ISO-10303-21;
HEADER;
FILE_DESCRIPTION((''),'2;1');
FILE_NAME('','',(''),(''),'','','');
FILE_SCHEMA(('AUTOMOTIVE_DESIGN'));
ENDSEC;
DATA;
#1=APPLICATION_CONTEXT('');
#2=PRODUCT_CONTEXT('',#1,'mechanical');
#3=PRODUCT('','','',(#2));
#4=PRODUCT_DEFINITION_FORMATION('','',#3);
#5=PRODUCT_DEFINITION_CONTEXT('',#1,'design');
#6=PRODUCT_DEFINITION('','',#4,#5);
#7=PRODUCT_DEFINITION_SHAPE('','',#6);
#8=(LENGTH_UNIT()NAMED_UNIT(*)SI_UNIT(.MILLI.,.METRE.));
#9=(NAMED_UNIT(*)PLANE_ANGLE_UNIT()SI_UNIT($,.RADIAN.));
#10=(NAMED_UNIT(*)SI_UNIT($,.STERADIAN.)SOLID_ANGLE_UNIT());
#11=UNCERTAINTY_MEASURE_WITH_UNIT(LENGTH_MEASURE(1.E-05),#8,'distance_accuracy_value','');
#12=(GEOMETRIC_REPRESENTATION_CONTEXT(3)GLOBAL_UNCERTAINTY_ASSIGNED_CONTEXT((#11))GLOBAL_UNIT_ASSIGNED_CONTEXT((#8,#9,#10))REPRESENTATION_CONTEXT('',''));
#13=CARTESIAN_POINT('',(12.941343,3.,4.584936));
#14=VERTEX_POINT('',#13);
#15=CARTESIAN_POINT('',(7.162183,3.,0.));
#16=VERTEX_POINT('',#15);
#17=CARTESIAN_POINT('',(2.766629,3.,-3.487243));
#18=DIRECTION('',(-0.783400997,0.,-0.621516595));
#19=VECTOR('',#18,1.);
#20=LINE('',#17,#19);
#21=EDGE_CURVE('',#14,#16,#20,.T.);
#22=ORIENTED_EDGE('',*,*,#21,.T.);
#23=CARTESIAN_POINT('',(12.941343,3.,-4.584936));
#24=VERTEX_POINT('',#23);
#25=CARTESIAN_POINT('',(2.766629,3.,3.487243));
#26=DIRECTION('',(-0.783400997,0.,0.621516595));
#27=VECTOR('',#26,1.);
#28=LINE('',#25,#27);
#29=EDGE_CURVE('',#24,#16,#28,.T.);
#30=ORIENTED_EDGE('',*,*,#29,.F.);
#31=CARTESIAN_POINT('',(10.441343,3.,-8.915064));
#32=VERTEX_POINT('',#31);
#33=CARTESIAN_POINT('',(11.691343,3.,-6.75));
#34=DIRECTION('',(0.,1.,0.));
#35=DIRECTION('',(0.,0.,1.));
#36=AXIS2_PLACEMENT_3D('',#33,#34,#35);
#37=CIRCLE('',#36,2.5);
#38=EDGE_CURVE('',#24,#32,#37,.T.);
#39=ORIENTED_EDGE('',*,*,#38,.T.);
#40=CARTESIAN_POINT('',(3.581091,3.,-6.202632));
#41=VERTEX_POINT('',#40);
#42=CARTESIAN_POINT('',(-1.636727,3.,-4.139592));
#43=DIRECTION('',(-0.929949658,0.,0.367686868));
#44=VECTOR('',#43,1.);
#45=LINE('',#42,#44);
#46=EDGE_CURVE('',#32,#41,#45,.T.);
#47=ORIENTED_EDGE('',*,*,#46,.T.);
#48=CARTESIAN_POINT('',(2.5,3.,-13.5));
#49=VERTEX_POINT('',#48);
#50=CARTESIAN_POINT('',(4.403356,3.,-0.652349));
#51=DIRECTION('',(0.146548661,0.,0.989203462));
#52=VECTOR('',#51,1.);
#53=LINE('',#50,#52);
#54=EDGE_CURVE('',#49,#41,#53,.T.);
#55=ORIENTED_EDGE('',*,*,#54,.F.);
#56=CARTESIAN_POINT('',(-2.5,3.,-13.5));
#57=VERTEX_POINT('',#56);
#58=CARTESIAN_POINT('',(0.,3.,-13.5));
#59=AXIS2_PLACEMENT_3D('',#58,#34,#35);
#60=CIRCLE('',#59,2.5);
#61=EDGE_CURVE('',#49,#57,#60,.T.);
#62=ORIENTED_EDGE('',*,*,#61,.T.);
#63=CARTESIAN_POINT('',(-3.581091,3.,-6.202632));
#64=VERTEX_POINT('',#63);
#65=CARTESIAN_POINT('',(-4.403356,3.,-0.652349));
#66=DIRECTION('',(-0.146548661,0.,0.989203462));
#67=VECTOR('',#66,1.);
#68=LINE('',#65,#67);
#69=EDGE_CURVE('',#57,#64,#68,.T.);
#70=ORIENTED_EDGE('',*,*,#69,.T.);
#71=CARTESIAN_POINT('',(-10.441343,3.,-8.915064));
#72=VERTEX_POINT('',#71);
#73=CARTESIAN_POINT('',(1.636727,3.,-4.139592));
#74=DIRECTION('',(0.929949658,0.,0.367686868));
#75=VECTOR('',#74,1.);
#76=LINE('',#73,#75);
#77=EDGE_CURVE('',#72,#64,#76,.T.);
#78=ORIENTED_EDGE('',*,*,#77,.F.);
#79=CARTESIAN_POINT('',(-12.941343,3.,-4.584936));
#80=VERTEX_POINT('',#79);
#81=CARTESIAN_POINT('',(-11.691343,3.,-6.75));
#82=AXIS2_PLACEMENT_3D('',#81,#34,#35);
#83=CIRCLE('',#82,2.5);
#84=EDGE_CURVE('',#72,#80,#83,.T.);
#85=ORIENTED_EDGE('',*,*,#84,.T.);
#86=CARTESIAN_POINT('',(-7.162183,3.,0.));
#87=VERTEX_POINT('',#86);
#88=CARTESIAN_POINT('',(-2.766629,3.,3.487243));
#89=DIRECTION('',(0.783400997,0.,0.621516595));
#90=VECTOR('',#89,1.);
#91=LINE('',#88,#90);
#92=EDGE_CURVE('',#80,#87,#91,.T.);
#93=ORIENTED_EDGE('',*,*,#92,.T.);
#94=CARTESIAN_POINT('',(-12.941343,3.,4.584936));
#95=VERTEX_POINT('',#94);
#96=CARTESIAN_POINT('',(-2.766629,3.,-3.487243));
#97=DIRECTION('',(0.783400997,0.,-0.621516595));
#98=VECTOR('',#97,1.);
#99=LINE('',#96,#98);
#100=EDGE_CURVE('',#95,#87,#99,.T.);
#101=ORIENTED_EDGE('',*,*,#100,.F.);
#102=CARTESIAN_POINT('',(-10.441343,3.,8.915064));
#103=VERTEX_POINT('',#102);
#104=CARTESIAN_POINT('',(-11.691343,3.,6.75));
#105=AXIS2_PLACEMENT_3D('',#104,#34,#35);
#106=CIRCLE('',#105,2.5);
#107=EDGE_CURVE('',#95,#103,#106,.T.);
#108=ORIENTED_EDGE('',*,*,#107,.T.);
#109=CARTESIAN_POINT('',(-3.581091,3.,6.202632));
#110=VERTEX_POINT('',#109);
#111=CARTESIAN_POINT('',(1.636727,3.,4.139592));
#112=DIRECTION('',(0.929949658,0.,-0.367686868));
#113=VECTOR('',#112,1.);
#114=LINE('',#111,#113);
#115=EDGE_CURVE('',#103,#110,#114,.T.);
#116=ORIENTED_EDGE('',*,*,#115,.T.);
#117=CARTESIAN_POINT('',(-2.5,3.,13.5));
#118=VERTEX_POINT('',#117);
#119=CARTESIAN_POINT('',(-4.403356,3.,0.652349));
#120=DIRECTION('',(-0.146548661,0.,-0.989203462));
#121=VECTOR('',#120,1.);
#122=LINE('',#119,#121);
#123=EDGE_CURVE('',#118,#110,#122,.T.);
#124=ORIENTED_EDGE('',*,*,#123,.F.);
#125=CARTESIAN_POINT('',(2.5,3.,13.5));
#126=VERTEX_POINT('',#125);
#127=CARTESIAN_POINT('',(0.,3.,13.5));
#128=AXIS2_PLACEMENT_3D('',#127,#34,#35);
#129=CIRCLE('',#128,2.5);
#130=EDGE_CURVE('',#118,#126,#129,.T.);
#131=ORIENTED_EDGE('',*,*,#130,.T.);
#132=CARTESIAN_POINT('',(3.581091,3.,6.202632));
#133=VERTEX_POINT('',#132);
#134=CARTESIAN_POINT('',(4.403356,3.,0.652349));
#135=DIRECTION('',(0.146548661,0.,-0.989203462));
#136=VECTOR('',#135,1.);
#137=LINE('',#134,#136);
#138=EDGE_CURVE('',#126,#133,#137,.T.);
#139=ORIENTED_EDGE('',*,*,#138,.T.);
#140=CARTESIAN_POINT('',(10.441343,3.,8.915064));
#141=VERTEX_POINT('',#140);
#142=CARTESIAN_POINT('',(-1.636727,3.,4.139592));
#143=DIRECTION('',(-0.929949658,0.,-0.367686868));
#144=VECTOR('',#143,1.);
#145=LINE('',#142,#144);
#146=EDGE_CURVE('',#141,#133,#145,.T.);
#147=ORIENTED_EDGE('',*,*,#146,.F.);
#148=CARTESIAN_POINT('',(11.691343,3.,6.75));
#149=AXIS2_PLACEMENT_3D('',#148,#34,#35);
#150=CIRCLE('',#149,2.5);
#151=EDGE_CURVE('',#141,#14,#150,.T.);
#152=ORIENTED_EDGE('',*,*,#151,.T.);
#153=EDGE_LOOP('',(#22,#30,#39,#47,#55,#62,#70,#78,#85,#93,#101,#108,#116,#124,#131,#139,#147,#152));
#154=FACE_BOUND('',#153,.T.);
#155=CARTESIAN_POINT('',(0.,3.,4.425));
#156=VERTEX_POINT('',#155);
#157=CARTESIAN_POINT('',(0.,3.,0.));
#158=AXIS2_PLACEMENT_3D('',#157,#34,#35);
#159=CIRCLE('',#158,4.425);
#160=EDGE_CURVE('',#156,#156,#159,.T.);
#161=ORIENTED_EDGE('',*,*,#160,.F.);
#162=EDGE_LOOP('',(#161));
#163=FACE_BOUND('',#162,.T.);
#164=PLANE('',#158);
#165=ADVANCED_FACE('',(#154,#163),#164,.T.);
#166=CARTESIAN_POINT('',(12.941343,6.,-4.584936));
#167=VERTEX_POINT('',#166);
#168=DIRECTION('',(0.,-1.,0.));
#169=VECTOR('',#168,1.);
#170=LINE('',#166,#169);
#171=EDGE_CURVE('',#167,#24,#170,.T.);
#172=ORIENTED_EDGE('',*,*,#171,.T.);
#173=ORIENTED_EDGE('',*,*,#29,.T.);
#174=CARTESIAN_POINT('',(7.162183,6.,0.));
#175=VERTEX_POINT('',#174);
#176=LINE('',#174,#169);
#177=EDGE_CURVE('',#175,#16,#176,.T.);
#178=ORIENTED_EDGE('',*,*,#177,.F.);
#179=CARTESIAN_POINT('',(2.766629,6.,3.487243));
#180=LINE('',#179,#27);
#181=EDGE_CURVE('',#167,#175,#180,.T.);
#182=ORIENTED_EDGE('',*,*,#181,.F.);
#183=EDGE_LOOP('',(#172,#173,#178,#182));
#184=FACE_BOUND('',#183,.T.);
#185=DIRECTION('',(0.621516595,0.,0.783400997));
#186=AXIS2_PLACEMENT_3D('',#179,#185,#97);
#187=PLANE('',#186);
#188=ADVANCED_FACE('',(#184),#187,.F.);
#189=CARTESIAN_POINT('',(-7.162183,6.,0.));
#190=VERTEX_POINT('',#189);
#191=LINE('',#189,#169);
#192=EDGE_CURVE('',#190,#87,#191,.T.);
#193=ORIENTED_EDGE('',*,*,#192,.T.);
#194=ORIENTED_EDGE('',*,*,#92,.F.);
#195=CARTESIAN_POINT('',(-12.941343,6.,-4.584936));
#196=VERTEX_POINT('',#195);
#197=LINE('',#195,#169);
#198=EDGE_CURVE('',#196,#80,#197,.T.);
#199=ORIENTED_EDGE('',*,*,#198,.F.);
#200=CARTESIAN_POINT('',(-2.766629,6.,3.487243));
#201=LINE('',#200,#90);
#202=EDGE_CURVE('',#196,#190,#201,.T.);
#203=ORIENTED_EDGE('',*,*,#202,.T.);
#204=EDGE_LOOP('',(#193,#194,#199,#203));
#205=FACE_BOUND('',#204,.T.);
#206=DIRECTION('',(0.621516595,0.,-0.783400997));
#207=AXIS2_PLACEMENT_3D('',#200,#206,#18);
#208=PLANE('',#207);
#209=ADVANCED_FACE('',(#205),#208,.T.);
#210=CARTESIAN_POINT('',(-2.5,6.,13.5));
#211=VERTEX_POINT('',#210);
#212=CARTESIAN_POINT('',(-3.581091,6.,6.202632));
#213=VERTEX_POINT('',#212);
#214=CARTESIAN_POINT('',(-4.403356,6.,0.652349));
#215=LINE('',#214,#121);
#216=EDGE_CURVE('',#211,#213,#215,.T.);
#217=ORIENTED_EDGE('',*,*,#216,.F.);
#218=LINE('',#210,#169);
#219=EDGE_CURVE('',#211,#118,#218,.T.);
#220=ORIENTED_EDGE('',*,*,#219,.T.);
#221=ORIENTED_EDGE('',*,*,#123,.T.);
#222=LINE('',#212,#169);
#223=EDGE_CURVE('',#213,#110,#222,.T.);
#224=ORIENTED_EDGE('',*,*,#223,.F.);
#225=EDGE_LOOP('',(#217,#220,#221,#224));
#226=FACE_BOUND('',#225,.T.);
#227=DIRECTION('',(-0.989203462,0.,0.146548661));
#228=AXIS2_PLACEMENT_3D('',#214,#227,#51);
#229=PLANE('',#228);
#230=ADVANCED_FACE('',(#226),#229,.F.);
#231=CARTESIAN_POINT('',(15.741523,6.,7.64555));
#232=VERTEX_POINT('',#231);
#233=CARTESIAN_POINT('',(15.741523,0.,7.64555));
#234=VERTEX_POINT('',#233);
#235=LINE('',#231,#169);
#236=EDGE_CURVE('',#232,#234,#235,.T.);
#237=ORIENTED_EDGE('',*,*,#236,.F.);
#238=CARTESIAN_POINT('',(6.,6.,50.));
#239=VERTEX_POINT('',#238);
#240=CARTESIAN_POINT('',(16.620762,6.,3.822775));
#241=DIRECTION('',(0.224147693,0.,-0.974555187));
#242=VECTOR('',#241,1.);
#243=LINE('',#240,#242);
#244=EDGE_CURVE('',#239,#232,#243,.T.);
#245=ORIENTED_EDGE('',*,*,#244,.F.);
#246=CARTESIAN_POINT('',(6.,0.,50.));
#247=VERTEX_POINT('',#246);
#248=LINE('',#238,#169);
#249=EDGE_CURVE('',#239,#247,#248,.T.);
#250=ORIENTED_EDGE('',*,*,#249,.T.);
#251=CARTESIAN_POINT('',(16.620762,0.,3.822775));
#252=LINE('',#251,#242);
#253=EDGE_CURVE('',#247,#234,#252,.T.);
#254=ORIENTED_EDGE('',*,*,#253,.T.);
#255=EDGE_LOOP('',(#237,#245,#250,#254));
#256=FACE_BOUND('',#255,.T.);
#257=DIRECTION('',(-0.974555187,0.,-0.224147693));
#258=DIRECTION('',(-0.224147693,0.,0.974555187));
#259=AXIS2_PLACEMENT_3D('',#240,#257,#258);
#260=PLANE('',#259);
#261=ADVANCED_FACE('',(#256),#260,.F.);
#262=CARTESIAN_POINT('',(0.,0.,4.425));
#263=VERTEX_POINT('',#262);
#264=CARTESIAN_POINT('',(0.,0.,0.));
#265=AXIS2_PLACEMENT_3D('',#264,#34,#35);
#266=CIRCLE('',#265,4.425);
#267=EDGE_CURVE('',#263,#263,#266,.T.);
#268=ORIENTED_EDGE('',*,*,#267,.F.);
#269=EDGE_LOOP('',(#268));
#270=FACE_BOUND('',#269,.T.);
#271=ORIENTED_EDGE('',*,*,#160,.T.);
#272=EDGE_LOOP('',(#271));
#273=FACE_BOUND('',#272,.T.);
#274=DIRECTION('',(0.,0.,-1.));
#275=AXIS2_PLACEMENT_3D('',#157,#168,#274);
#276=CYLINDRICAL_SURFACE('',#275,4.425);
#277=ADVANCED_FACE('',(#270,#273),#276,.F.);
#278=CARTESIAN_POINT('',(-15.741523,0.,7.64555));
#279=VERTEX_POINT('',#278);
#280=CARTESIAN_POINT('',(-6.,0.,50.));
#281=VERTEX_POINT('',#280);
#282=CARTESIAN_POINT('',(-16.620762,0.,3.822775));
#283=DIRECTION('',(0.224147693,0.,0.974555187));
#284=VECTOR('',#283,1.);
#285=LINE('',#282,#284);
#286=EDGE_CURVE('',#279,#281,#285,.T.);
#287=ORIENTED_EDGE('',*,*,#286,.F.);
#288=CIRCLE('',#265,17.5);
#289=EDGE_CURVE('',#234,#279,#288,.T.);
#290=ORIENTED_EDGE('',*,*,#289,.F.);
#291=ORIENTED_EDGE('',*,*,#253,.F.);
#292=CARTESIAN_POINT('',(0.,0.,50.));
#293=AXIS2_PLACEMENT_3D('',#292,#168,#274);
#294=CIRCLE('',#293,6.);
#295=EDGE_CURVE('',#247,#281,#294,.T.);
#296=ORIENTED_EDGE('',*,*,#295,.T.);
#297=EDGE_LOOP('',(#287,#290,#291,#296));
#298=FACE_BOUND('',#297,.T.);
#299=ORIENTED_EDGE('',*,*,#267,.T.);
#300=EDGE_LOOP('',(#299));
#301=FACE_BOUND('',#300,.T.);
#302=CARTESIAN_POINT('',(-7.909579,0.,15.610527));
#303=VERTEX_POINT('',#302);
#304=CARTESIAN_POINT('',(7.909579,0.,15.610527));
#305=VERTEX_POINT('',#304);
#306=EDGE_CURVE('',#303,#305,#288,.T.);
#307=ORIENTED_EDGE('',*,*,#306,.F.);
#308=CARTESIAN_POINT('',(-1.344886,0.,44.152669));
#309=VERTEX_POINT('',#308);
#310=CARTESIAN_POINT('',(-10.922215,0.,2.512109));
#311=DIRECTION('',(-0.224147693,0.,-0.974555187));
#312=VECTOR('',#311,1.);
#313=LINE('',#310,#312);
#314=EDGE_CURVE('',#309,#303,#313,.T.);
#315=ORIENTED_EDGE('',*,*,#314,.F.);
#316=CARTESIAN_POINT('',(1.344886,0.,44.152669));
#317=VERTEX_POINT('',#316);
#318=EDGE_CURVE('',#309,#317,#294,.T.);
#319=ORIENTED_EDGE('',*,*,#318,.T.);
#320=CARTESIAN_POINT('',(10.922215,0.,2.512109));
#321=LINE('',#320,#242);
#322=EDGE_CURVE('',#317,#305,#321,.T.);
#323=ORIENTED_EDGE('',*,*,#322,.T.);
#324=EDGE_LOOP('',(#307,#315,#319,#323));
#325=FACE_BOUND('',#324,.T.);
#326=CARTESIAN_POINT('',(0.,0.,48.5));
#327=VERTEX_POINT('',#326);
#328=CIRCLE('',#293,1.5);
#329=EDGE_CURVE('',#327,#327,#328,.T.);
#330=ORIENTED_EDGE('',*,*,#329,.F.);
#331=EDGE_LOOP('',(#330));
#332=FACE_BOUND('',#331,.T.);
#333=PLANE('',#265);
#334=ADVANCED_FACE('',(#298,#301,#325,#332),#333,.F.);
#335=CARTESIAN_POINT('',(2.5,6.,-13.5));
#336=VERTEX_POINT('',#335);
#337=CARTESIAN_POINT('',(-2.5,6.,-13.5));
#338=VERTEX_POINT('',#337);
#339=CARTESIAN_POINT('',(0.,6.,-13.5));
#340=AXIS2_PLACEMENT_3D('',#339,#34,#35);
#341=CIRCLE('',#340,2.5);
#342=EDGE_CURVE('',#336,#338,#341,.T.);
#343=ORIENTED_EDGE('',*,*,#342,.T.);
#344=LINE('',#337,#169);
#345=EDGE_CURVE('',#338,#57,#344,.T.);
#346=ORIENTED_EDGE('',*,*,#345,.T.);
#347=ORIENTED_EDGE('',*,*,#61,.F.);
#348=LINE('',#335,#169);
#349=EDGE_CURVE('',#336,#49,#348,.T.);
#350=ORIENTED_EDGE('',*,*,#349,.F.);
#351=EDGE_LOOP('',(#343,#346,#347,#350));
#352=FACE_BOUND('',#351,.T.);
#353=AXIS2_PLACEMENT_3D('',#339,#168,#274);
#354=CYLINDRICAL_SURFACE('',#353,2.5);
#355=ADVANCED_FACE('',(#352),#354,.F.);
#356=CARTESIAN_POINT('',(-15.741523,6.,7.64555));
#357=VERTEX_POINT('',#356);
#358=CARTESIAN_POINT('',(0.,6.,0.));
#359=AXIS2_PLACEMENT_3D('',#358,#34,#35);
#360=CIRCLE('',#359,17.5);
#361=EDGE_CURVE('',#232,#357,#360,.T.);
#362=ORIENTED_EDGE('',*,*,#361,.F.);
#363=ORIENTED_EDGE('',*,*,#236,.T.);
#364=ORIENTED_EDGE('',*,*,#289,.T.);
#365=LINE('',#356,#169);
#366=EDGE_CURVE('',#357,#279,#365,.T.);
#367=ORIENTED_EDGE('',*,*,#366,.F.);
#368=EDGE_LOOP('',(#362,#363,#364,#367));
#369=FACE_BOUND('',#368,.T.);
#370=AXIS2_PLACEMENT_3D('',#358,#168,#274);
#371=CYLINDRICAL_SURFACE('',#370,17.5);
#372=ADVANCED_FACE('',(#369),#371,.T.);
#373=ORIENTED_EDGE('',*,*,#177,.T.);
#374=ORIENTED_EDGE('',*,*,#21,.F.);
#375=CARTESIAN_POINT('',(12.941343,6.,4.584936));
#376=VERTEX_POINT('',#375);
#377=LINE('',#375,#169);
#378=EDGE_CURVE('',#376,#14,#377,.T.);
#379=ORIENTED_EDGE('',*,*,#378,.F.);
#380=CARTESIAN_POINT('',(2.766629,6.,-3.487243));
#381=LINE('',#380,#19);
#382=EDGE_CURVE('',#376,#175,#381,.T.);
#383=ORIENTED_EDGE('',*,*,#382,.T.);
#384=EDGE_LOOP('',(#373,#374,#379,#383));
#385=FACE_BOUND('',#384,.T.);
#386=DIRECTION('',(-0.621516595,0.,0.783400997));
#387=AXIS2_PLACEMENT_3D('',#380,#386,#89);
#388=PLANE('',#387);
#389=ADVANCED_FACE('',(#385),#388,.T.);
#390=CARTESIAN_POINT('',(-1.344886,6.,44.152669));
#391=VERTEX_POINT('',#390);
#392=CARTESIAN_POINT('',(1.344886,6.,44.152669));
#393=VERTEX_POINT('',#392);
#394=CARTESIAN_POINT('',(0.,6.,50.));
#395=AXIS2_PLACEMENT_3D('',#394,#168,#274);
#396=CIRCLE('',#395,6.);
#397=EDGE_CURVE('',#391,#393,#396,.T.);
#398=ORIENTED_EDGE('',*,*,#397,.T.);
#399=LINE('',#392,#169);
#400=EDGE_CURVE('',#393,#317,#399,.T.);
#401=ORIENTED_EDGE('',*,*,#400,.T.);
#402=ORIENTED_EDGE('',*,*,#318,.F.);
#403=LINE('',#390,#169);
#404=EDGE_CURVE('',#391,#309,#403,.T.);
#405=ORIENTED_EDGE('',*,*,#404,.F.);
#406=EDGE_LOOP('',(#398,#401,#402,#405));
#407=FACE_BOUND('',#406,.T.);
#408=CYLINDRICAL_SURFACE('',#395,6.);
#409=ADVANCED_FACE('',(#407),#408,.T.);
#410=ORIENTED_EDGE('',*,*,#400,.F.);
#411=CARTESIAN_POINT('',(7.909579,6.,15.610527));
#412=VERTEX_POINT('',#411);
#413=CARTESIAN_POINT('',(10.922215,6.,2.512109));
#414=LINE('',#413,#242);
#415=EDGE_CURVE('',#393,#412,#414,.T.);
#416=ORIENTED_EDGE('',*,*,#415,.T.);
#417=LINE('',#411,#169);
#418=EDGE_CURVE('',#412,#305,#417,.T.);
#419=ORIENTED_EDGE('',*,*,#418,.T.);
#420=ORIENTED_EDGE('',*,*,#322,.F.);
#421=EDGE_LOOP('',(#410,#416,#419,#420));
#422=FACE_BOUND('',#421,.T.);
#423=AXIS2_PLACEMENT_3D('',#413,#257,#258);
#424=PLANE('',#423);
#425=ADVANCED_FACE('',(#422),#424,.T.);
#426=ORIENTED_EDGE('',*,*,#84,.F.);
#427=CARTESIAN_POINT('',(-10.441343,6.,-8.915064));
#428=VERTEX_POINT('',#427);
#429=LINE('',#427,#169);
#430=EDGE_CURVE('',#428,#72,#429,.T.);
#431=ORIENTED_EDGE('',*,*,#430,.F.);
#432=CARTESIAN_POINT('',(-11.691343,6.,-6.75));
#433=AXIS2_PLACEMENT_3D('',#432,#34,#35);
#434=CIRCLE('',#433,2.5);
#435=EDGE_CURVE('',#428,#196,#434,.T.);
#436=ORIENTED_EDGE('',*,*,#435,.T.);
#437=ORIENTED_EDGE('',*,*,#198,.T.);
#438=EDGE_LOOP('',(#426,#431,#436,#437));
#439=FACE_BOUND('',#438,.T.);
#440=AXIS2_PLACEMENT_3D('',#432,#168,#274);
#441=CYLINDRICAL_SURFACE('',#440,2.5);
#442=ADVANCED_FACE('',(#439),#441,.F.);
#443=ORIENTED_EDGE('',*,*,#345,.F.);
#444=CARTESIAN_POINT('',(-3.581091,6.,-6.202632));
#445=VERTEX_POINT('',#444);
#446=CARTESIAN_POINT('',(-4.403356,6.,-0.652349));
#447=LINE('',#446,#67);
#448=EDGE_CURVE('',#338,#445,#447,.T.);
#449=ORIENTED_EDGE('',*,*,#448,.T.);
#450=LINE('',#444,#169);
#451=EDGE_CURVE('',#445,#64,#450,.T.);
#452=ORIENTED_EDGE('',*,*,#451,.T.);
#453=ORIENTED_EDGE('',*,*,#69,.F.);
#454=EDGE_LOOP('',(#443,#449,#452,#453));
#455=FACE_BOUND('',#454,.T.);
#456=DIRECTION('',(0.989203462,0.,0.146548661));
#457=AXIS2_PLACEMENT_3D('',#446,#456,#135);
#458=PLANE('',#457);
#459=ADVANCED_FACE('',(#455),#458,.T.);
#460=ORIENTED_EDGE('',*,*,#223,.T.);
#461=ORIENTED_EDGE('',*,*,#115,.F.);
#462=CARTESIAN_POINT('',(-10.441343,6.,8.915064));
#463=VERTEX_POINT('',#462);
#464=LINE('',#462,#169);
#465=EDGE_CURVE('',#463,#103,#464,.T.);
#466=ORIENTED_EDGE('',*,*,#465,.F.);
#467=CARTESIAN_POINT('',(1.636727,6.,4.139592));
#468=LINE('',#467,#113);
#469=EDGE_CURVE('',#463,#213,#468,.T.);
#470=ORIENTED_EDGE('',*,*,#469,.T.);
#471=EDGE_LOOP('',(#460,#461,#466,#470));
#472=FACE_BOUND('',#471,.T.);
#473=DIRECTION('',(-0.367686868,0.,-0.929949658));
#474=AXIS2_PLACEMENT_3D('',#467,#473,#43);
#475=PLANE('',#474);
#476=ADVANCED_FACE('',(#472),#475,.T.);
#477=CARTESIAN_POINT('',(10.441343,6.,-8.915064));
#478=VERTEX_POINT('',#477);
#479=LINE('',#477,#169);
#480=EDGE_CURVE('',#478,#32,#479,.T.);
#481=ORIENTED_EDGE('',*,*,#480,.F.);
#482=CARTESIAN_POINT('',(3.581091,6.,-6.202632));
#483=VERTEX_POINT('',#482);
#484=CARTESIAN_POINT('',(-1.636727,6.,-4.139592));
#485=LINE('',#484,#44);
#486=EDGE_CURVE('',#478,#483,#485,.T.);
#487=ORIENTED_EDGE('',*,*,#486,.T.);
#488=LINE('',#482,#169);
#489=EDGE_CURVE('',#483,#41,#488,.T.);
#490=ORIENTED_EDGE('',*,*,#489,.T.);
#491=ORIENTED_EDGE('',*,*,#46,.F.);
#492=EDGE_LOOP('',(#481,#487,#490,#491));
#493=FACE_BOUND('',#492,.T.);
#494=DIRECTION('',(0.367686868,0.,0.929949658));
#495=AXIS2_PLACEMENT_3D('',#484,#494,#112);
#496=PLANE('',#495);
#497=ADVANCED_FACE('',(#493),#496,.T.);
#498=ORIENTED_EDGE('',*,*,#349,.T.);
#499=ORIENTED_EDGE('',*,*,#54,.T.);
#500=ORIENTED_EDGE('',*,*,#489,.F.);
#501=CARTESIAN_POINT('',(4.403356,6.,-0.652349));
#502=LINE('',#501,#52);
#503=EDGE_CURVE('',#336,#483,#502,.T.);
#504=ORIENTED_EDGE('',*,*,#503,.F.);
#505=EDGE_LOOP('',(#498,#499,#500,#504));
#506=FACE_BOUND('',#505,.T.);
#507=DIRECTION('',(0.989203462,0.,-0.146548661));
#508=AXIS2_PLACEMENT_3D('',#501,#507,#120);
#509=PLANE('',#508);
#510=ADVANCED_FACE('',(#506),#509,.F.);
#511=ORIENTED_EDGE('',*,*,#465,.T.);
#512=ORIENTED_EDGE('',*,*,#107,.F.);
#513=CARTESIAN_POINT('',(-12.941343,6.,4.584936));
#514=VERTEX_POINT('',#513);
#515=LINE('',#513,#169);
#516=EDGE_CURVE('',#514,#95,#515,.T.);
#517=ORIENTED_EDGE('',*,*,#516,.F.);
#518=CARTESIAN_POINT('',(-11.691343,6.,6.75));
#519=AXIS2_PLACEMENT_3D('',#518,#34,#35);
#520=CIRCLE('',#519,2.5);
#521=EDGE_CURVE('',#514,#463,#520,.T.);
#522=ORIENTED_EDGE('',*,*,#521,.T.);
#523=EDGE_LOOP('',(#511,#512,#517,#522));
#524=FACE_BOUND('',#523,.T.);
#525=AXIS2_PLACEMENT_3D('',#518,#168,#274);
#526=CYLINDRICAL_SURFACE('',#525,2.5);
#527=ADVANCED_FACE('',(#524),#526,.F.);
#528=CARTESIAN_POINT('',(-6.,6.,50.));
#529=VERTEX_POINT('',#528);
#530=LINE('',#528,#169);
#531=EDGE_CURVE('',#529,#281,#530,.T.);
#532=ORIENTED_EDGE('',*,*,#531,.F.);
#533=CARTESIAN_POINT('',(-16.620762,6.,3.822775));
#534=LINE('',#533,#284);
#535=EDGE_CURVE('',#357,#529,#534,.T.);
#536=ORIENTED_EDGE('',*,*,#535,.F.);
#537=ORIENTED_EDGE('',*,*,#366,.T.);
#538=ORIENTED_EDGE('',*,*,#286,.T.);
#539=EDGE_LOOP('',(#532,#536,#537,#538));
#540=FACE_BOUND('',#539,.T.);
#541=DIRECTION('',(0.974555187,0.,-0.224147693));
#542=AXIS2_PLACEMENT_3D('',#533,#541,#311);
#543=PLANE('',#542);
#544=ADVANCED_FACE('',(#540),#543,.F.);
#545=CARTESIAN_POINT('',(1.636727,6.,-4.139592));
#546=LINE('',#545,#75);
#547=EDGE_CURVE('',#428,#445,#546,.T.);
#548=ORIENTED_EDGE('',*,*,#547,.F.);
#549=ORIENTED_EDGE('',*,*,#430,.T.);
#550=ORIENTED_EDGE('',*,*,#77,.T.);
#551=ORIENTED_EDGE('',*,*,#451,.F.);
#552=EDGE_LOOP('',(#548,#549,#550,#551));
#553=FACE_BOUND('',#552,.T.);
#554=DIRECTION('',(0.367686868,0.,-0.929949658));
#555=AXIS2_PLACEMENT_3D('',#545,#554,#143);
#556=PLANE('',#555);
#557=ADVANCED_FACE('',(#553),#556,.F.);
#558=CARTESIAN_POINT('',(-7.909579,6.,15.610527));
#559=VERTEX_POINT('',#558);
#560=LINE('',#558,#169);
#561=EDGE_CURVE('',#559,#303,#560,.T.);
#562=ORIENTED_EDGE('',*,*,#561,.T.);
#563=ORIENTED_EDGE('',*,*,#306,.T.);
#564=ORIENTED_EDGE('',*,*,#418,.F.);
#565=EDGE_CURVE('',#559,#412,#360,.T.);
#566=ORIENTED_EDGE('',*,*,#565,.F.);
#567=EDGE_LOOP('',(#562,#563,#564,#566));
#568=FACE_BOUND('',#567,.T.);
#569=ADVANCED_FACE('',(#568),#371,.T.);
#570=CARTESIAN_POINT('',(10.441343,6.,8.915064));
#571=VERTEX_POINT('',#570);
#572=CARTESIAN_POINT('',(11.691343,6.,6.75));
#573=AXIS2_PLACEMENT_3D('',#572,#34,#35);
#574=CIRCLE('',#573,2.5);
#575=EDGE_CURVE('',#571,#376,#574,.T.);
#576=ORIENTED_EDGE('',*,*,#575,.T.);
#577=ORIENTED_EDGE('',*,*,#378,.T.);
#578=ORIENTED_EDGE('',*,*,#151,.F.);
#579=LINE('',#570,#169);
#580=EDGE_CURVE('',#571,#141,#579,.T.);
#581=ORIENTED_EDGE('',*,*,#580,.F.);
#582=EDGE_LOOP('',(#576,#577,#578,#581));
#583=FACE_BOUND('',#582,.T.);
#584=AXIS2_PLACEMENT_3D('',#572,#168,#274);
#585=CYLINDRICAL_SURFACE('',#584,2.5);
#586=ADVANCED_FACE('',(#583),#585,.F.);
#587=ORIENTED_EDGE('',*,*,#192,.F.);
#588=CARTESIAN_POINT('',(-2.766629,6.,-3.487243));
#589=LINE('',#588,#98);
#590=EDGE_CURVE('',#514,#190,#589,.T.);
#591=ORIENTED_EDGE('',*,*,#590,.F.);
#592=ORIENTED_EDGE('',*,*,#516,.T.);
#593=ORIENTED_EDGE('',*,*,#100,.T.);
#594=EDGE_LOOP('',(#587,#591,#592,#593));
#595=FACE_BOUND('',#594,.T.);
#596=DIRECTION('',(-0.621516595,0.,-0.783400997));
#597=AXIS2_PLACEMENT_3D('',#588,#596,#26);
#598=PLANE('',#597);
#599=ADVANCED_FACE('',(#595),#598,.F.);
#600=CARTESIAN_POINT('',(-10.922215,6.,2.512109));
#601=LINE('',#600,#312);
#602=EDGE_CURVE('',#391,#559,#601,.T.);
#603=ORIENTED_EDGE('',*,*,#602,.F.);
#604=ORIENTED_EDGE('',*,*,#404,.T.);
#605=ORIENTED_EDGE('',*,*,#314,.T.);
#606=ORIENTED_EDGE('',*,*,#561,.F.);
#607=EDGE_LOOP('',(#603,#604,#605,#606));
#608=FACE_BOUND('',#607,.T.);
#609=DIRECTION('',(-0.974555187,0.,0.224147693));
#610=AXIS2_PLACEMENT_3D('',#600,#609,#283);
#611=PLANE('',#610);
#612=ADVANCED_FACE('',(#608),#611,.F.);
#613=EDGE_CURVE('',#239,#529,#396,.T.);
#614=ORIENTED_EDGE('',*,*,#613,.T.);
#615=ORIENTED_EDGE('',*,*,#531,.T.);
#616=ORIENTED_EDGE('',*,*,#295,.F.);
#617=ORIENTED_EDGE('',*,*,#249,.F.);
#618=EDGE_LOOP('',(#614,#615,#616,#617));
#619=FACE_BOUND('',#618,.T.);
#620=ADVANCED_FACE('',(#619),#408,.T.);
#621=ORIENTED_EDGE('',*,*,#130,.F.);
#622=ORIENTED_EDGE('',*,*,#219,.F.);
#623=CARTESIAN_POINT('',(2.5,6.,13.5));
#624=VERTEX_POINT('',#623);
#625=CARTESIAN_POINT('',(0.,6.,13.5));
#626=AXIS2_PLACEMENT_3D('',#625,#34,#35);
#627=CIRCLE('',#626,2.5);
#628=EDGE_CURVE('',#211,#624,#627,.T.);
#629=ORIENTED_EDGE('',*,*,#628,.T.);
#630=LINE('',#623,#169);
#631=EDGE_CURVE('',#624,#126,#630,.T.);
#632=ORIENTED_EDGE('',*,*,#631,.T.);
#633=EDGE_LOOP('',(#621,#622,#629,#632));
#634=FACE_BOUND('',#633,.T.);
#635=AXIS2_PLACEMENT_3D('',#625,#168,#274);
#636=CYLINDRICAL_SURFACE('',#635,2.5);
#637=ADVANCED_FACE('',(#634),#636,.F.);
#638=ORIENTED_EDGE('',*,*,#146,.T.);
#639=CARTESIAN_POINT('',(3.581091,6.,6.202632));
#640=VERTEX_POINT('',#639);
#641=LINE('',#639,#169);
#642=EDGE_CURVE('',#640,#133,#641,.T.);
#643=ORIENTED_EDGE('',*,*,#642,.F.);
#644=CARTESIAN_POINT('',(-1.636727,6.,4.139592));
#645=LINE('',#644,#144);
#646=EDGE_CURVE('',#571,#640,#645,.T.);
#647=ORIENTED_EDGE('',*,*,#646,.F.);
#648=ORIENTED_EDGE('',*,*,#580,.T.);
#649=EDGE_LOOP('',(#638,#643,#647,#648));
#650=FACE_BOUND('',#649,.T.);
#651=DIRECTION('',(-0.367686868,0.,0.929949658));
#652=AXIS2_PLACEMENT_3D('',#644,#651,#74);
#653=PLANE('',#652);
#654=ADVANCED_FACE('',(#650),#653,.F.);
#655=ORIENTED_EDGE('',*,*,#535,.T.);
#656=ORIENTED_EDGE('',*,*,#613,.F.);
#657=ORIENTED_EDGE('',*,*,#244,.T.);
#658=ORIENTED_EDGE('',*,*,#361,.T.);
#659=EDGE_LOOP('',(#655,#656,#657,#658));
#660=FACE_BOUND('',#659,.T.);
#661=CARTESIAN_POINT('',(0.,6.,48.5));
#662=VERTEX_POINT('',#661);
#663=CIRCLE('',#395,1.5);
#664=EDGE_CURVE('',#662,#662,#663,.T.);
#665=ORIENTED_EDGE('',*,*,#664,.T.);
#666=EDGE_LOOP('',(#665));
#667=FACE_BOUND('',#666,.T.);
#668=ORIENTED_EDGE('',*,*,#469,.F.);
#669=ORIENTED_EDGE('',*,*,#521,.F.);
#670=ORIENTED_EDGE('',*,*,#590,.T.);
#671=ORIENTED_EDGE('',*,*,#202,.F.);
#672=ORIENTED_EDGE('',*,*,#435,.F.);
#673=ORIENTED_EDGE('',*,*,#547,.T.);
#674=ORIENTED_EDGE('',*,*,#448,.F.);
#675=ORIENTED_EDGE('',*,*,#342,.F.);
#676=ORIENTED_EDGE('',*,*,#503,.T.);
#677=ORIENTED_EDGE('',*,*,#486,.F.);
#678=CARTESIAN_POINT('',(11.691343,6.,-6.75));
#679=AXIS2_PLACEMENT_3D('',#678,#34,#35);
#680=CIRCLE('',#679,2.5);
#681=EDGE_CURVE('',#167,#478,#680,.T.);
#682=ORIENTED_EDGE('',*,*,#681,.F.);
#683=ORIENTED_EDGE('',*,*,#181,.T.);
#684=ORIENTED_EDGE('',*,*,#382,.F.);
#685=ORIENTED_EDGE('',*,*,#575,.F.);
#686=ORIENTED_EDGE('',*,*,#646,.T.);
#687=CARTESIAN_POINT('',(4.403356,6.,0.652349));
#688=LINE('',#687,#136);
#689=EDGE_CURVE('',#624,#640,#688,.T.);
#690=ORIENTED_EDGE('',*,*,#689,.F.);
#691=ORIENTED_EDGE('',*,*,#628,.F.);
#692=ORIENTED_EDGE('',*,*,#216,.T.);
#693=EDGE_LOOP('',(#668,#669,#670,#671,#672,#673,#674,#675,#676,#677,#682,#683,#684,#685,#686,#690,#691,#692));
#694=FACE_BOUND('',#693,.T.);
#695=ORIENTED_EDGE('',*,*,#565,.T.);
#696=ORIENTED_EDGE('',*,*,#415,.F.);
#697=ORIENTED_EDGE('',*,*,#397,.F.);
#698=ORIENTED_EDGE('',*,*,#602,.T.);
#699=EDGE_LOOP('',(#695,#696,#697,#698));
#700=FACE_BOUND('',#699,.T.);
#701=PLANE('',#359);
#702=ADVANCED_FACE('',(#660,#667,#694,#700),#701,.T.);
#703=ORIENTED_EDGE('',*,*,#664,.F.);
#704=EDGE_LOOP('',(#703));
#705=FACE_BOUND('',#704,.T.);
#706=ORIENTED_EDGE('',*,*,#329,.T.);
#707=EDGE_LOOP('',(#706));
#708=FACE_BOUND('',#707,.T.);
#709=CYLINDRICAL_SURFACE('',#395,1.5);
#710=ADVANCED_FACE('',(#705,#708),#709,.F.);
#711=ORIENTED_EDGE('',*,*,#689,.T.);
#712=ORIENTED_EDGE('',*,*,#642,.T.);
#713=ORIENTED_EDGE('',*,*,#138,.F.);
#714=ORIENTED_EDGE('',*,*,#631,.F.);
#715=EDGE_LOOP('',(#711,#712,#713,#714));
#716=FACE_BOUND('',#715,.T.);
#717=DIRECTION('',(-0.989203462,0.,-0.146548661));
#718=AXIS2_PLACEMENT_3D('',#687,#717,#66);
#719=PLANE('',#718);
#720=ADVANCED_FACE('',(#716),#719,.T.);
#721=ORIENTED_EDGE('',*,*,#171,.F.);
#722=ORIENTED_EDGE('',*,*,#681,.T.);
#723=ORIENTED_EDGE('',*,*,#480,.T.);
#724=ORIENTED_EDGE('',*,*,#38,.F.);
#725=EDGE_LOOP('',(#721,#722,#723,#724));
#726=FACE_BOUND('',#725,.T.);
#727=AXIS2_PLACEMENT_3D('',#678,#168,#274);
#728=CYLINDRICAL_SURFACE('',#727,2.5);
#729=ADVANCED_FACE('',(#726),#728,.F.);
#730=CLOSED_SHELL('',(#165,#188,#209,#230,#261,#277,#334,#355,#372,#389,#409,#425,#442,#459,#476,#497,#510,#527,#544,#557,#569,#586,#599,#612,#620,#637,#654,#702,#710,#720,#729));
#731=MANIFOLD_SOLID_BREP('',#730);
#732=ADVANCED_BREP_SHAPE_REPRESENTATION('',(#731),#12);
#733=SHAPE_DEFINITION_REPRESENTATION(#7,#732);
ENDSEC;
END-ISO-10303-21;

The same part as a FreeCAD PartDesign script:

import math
import FreeCAD as App
import Part
import Sketcher

V = App.Vector

doc = App.newDocument("Part")
body = doc.addObject("PartDesign::Body", "Body")

# Sketch on XZ plane
sketch1 = body.newObject("Sketcher::SketchObject", "Sketch")
sketch1.AttachmentSupport = (doc.getObject("XZ_Plane"), [""])
sketch1.MapMode = "FlatFace"
sketch1.addGeometry([
    Part.Circle(V(0, 0, 0), V(0, 0, 1), 17.5),  # 0
    Part.LineSegment(V(-3.6, -6.2, 0), V(-2.5, -13.5, 0)),  # 1
    Part.ArcOfCircle(Part.Circle(V(0, -13.5, 0), V(0, 0, 1), 2.5), math.radians(180), math.radians(270)),  # 2
    Part.ArcOfCircle(Part.Circle(V(0, -13.5, 0), V(0, 0, 1), 2.5), math.radians(-90), math.radians(0)),  # 3
    Part.LineSegment(V(2.5, -13.5, 0), V(3.6, -6.2, 0)),  # 4
    Part.LineSegment(V(3.6, -6.2, 0), V(10.4, -8.9, 0)),  # 5
    Part.ArcOfCircle(Part.Circle(V(11.7, -6.8, 0), V(0, 0, 1), 2.5), math.radians(-120), math.radians(-30)),  # 6
    Part.ArcOfCircle(Part.Circle(V(11.7, -6.8, 0), V(0, 0, 1), 2.5), math.radians(-30), math.radians(0)),  # 7
    Part.ArcOfCircle(Part.Circle(V(11.7, -6.7, 0), V(0, 0, 1), 2.5), math.radians(0), math.radians(60)),  # 8
    Part.LineSegment(V(12.9, -4.6, 0), V(7.2, 0, 0)),  # 9
    Part.LineSegment(V(7.2, 0, 0), V(12.9, 4.6, 0)),  # 10
    Part.ArcOfCircle(Part.Circle(V(11.7, 6.7, 0), V(0, 0, 1), 2.5), math.radians(-60), math.radians(0)),  # 11
    Part.ArcOfCircle(Part.Circle(V(11.7, 6.8, 0), V(0, 0, 1), 2.5), math.radians(0), math.radians(30)),  # 12
    Part.ArcOfCircle(Part.Circle(V(11.7, 6.8, 0), V(0, 0, 1), 2.5), math.radians(30), math.radians(120)),  # 13
    Part.LineSegment(V(10.4, 8.9, 0), V(3.6, 6.2, 0)),  # 14
    Part.LineSegment(V(3.6, 6.2, 0), V(2.5, 13.5, 0)),  # 15
    Part.ArcOfCircle(Part.Circle(V(0, 13.5, 0), V(0, 0, 1), 2.5), math.radians(0), math.radians(90)),  # 16
    Part.ArcOfCircle(Part.Circle(V(0, 13.5, 0), V(0, 0, 1), 2.5), math.radians(90), math.radians(180)),  # 17
    Part.LineSegment(V(-2.5, 13.5, 0), V(-3.6, 6.2, 0)),  # 18
    Part.LineSegment(V(-3.6, 6.2, 0), V(-10.4, 8.9, 0)),  # 19
    Part.ArcOfCircle(Part.Circle(V(-11.7, 6.8, 0), V(0, 0, 1), 2.5), math.radians(60), math.radians(150)),  # 20
    Part.ArcOfCircle(Part.Circle(V(-11.7, 6.8, 0), V(0, 0, 1), 2.5), math.radians(150), math.radians(240)),  # 21
    Part.LineSegment(V(-12.9, 4.6, 0), V(-7.2, 0, 0)),  # 22
    Part.LineSegment(V(-7.2, 0, 0), V(-12.9, -4.6, 0)),  # 23
    Part.ArcOfCircle(Part.Circle(V(-11.7, -6.8, 0), V(0, 0, 1), 2.5), math.radians(120), math.radians(210)),  # 24
    Part.ArcOfCircle(Part.Circle(V(-11.7, -6.8, 0), V(0, 0, 1), 2.5), math.radians(-150), math.radians(-60)),  # 25
    Part.LineSegment(V(-10.4, -8.9, 0), V(-3.6, -6.2, 0)),  # 26
], False)
sketch1.addConstraint([
    Sketcher.Constraint("Coincident", 1, 2, 2, 1),
    Sketcher.Constraint("Tangent", 2, 2, 3, 1),
    Sketcher.Constraint("Coincident", 3, 2, 4, 1),
    Sketcher.Constraint("Coincident", 4, 2, 5, 1),
    Sketcher.Constraint("Coincident", 5, 2, 6, 1),
    Sketcher.Constraint("Tangent", 6, 2, 7, 1),
    Sketcher.Constraint("Tangent", 7, 2, 8, 1),
    Sketcher.Constraint("Coincident", 8, 2, 9, 1),
    Sketcher.Constraint("Coincident", 9, 2, 10, 1),
    Sketcher.Constraint("Coincident", 10, 2, 11, 1),
    Sketcher.Constraint("Tangent", 11, 2, 12, 1),
    Sketcher.Constraint("Tangent", 12, 2, 13, 1),
    Sketcher.Constraint("Coincident", 13, 2, 14, 1),
    Sketcher.Constraint("Coincident", 14, 2, 15, 1),
    Sketcher.Constraint("Coincident", 15, 2, 16, 1),
    Sketcher.Constraint("Tangent", 16, 2, 17, 1),
    Sketcher.Constraint("Coincident", 17, 2, 18, 1),
    Sketcher.Constraint("Coincident", 18, 2, 19, 1),
    Sketcher.Constraint("Coincident", 19, 2, 20, 1),
    Sketcher.Constraint("Tangent", 20, 2, 21, 1),
    Sketcher.Constraint("Coincident", 21, 2, 22, 1),
    Sketcher.Constraint("Coincident", 22, 2, 23, 1),
    Sketcher.Constraint("Coincident", 23, 2, 24, 1),
    Sketcher.Constraint("Tangent", 24, 2, 25, 1),
    Sketcher.Constraint("Coincident", 25, 2, 26, 1),
    Sketcher.Constraint("Coincident", 26, 2, 1, 1),
    Sketcher.Constraint("Coincident", 0, 3, -1, 1),
    Sketcher.Constraint("Coincident", 8, 3, 6, 3),
    Sketcher.Constraint("Coincident", 13, 3, 11, 3),
    Sketcher.Constraint("Equal", 2, 3),
    Sketcher.Constraint("Equal", 3, 6),
    Sketcher.Constraint("Equal", 8, 11),
    Sketcher.Constraint("Equal", 13, 16),
    Sketcher.Constraint("Equal", 16, 17),
    Sketcher.Constraint("Equal", 17, 20),
    Sketcher.Constraint("Equal", 20, 21),
    Sketcher.Constraint("Equal", 21, 24),
    Sketcher.Constraint("Equal", 24, 25),
    Sketcher.Constraint("Symmetric", 2, 3, 16, 3, -1, 1),
    Sketcher.Constraint("Symmetric", 6, 3, 20, 3, -1, 1),
    Sketcher.Constraint("Symmetric", 11, 3, 24, 3, -1, 1),
    Sketcher.Constraint("Symmetric", 4, 2, 18, 2, -1, 1),
    Sketcher.Constraint("Symmetric", 9, 2, 22, 2, -1, 1),
    Sketcher.Constraint("Symmetric", 14, 2, 26, 2, -1, 1),
    Sketcher.Constraint("Symmetric", 11, 3, 20, 3, -2),
    Sketcher.Constraint("Symmetric", 1, 2, 3, 2, -2),
    Sketcher.Constraint("Symmetric", 14, 2, 18, 2, -2),
    Sketcher.Constraint("PointOnObject", 2, 2, -2),
    Sketcher.Constraint("PointOnObject", 9, 2, -1),
    Sketcher.Constraint("PointOnObject", 16, 2, -2),
    Sketcher.Constraint("Parallel", 1, 15),
    Sketcher.Constraint("Parallel", 4, 18),
    Sketcher.Constraint("Parallel", 5, 19),
    Sketcher.Constraint("Parallel", 9, 22),
    Sketcher.Constraint("Parallel", 10, 23),
    Sketcher.Constraint("Parallel", 14, 26),
    Sketcher.Constraint("Horizontal", 3, 3, 1, 2),
    Sketcher.Constraint("Horizontal", 25, 3, 7, 2),
    Sketcher.Constraint("Horizontal", 21, 3, 11, 2),
    Sketcher.Constraint("Horizontal", 13, 2, 19, 2),
    Sketcher.Constraint("Horizontal", 12, 2, 20, 2),
    Sketcher.Constraint("Horizontal", 10, 2, 21, 2),
    Sketcher.Constraint("Horizontal", 6, 2, 24, 2),
    Sketcher.Constraint("Vertical", 6, 2, 12, 2),
    Sketcher.Constraint("Equal", 4, 5),
    Sketcher.Constraint("Equal", 5, 9),
    Sketcher.Constraint("Diameter", 0, 35.0),
    Sketcher.Constraint("Radius", 2, 2.5),
    Sketcher.Constraint("DistanceY", 2, 2, -1, 1, 16.0),
    Sketcher.Constraint("DistanceY", 6, 2, -1, 1, 8.0),
    Sketcher.Constraint("DistanceY", 8, 3, 11, 3, 13.5),
    Sketcher.Constraint("DistanceX", 21, 2, 19, 2, 2.5),
    Sketcher.Constraint("DistanceX", 5, 2, 6, 3, 1.25),
    Sketcher.Constraint("DistanceX", -1, 1, 4, 2, 3.581091),
    Sketcher.Constraint("DistanceX", 4, 2, 6, 3, 8.110251),
])
pad1 = body.newObject("PartDesign::Pad", "Pad")
pad1.Profile = sketch1
pad1.Length = 6
pad1.Reversed = True

# Sketch on XZ plane
sketch2 = body.newObject("Sketcher::SketchObject", "Sketch001")
sketch2.AttachmentSupport = (doc.getObject("XZ_Plane"), [""])
sketch2.MapMode = "FlatFace"
sketch2.addGeometry([
    Part.LineSegment(V(-7.2, 0, 0), V(-12.9, 4.6, 0)),  # 0
    Part.ArcOfCircle(Part.Circle(V(-11.7, 6.8, 0), V(0, 0, 1), 2.5), math.radians(150), math.radians(240)),  # 1
    Part.ArcOfCircle(Part.Circle(V(-11.7, 6.8, 0), V(0, 0, 1), 2.5), math.radians(60), math.radians(150)),  # 2
    Part.LineSegment(V(-10.4, 8.9, 0), V(-3.6, 6.2, 0)),  # 3
    Part.LineSegment(V(-3.6, 6.2, 0), V(-2.5, 13.5, 0)),  # 4
    Part.ArcOfCircle(Part.Circle(V(0, 13.5, 0), V(0, 0, 1), 2.5), math.radians(90), math.radians(180)),  # 5
    Part.ArcOfCircle(Part.Circle(V(0, 13.5, 0), V(0, 0, 1), 2.5), math.radians(0), math.radians(90)),  # 6
    Part.LineSegment(V(2.5, 13.5, 0), V(3.6, 6.2, 0)),  # 7
    Part.LineSegment(V(3.6, 6.2, 0), V(10.4, 8.9, 0)),  # 8
    Part.ArcOfCircle(Part.Circle(V(11.7, 6.8, 0), V(0, 0, 1), 2.5), math.radians(30), math.radians(120)),  # 9
    Part.ArcOfCircle(Part.Circle(V(11.7, 6.8, 0), V(0, 0, 1), 2.5), math.radians(0), math.radians(30)),  # 10
    Part.ArcOfCircle(Part.Circle(V(11.7, 6.7, 0), V(0, 0, 1), 2.5), math.radians(-60), math.radians(0)),  # 11
    Part.LineSegment(V(12.9, 4.6, 0), V(7.2, 0, 0)),  # 12
    Part.LineSegment(V(7.2, 0, 0), V(12.9, -4.6, 0)),  # 13
    Part.ArcOfCircle(Part.Circle(V(11.7, -6.7, 0), V(0, 0, 1), 2.5), math.radians(0), math.radians(60)),  # 14
    Part.ArcOfCircle(Part.Circle(V(11.7, -6.8, 0), V(0, 0, 1), 2.5), math.radians(-30), math.radians(0)),  # 15
    Part.ArcOfCircle(Part.Circle(V(11.7, -6.8, 0), V(0, 0, 1), 2.5), math.radians(-120), math.radians(-30)),  # 16
    Part.LineSegment(V(10.4, -8.9, 0), V(3.6, -6.2, 0)),  # 17
    Part.LineSegment(V(3.6, -6.2, 0), V(2.5, -13.5, 0)),  # 18
    Part.ArcOfCircle(Part.Circle(V(0, -13.5, 0), V(0, 0, 1), 2.5), math.radians(-90), math.radians(0)),  # 19
    Part.ArcOfCircle(Part.Circle(V(0, -13.5, 0), V(0, 0, 1), 2.5), math.radians(180), math.radians(270)),  # 20
    Part.LineSegment(V(-2.5, -13.5, 0), V(-3.6, -6.2, 0)),  # 21
    Part.LineSegment(V(-3.6, -6.2, 0), V(-10.4, -8.9, 0)),  # 22
    Part.ArcOfCircle(Part.Circle(V(-11.7, -6.8, 0), V(0, 0, 1), 2.5), math.radians(-150), math.radians(-60)),  # 23
    Part.ArcOfCircle(Part.Circle(V(-11.7, -6.8, 0), V(0, 0, 1), 2.5), math.radians(120), math.radians(210)),  # 24
    Part.LineSegment(V(-12.9, -4.6, 0), V(-7.2, 0, 0)),  # 25
    Part.ArcOfCircle(Part.Circle(V(0, 0, 0), V(0, 0, 1), 4.4), math.radians(-30), math.radians(0)),  # 26
    Part.ArcOfCircle(Part.Circle(V(0, 0, 0), V(0, 0, 1), 4.4), math.radians(0), math.radians(30)),  # 27
    Part.ArcOfCircle(Part.Circle(V(0, 0, 0), V(0, 0, 1), 4.4), math.radians(30), math.radians(90)),  # 28
    Part.ArcOfCircle(Part.Circle(V(0, 0, 0), V(0, 0, 1), 4.4), math.radians(90), math.radians(150)),  # 29
    Part.ArcOfCircle(Part.Circle(V(0, 0, 0), V(0, 0, 1), 4.4), math.radians(150), math.radians(210)),  # 30
    Part.ArcOfCircle(Part.Circle(V(0, 0, 0), V(0, 0, 1), 4.4), math.radians(-150), math.radians(-90)),  # 31
    Part.ArcOfCircle(Part.Circle(V(0, 0, 0), V(0, 0, 1), 4.4), math.radians(-90), math.radians(-30)),  # 32
], False)
sketch2.addConstraint([
    Sketcher.Constraint("Coincident", 0, 2, 1, 2),
    Sketcher.Constraint("Tangent", 1, 1, 2, 2),
    Sketcher.Constraint("Coincident", 2, 1, 3, 1),
    Sketcher.Constraint("Coincident", 3, 2, 4, 1),
    Sketcher.Constraint("Coincident", 4, 2, 5, 2),
    Sketcher.Constraint("Tangent", 5, 1, 6, 2),
    Sketcher.Constraint("Coincident", 6, 1, 7, 1),
    Sketcher.Constraint("Coincident", 7, 2, 8, 1),
    Sketcher.Constraint("Coincident", 8, 2, 9, 2),
    Sketcher.Constraint("Tangent", 9, 1, 10, 2),
    Sketcher.Constraint("Tangent", 10, 1, 11, 2),
    Sketcher.Constraint("Coincident", 11, 1, 12, 1),
    Sketcher.Constraint("Coincident", 12, 2, 13, 1),
    Sketcher.Constraint("Coincident", 13, 2, 14, 2),
    Sketcher.Constraint("Tangent", 14, 1, 15, 2),
    Sketcher.Constraint("Tangent", 15, 1, 16, 2),
    Sketcher.Constraint("Coincident", 16, 1, 17, 1),
    Sketcher.Constraint("Coincident", 17, 2, 18, 1),
    Sketcher.Constraint("Coincident", 18, 2, 19, 2),
    Sketcher.Constraint("Tangent", 19, 1, 20, 2),
    Sketcher.Constraint("Coincident", 20, 1, 21, 1),
    Sketcher.Constraint("Coincident", 21, 2, 22, 1),
    Sketcher.Constraint("Coincident", 22, 2, 23, 2),
    Sketcher.Constraint("Tangent", 23, 1, 24, 2),
    Sketcher.Constraint("Coincident", 24, 1, 25, 1),
    Sketcher.Constraint("Coincident", 25, 2, 0, 1),
    Sketcher.Constraint("Tangent", 26, 2, 27, 1),
    Sketcher.Constraint("Tangent", 27, 2, 28, 1),
    Sketcher.Constraint("Tangent", 28, 2, 29, 1),
    Sketcher.Constraint("Tangent", 29, 2, 30, 1),
    Sketcher.Constraint("Tangent", 30, 2, 31, 1),
    Sketcher.Constraint("Tangent", 31, 2, 32, 1),
    Sketcher.Constraint("Tangent", 32, 2, 26, 1),
    Sketcher.Constraint("Coincident", 26, 3, -1, 1),
    Sketcher.Constraint("Coincident", 28, 3, -1, 1),
    Sketcher.Constraint("Coincident", 30, 3, -1, 1),
    Sketcher.Constraint("Coincident", 11, 3, 9, 3),
    Sketcher.Constraint("Coincident", 16, 3, 14, 3),
    Sketcher.Constraint("Equal", 1, 2),
    Sketcher.Constraint("Equal", 2, 5),
    Sketcher.Constraint("Equal", 5, 6),
    Sketcher.Constraint("Equal", 6, 9),
    Sketcher.Constraint("Equal", 11, 14),
    Sketcher.Constraint("Equal", 16, 19),
    Sketcher.Constraint("Equal", 19, 20),
    Sketcher.Constraint("Equal", 20, 23),
    Sketcher.Constraint("Equal", 23, 24),
    Sketcher.Constraint("Symmetric", 1, 3, 14, 3, -1, 1),
    Sketcher.Constraint("Symmetric", 5, 3, 19, 3, -1, 1),
    Sketcher.Constraint("Symmetric", 9, 3, 23, 3, -1, 1),
    Sketcher.Constraint("Symmetric", 3, 2, 17, 2, -1, 1),
    Sketcher.Constraint("Symmetric", 7, 2, 21, 2, -1, 1),
    Sketcher.Constraint("Symmetric", 12, 2, 25, 2, -1, 1),
    Sketcher.Constraint("Symmetric", 1, 3, 9, 3, -2),
    Sketcher.Constraint("Symmetric", 4, 2, 6, 1, -2),
    Sketcher.Constraint("Symmetric", 3, 2, 7, 2, -2),
    Sketcher.Constraint("PointOnObject", 5, 1, -2),
    Sketcher.Constraint("PointOnObject", 12, 2, -1),
    Sketcher.Constraint("PointOnObject", 19, 1, -2),
    Sketcher.Constraint("PointOnObject", 26, 2, -1),
    Sketcher.Constraint("PointOnObject", 28, 2, -2),
    Sketcher.Constraint("PointOnObject", 31, 2, -2),
    Sketcher.Constraint("Parallel", 0, 13),
    Sketcher.Constraint("Parallel", 3, 17),
    Sketcher.Constraint("Parallel", 4, 18),
    Sketcher.Constraint("Parallel", 7, 21),
    Sketcher.Constraint("Parallel", 8, 22),
    Sketcher.Constraint("Parallel", 12, 25),
    Sketcher.Constraint("Horizontal", 6, 3, 4, 2),
    Sketcher.Constraint("Horizontal", 2, 1, 8, 2),
    Sketcher.Constraint("Horizontal", 1, 1, 9, 1),
    Sketcher.Constraint("Horizontal", 11, 3, 10, 1),
    Sketcher.Constraint("Horizontal", 0, 2, 11, 1),
    Sketcher.Constraint("Horizontal", 24, 3, 14, 1),
    Sketcher.Constraint("Horizontal", 15, 1, 23, 1),
    Sketcher.Constraint("Horizontal", 27, 2, 29, 2),
    Sketcher.Constraint("Horizontal", 30, 2, 32, 2),
    Sketcher.Constraint("Vertical", 9, 1, 15, 1),
    Sketcher.Constraint("Vertical", 29, 2, 30, 2),
    Sketcher.Constraint("Equal", 0, 3),
    Sketcher.Constraint("Equal", 3, 4),
    Sketcher.Constraint("Radius", 1, 2.5),
    Sketcher.Constraint("DistanceY", -1, 1, 1, 1, 8.0),
    Sketcher.Constraint("DistanceY", -1, 1, 5, 1, 16.0),
    Sketcher.Constraint("Radius", 26, 4.425),
    Sketcher.Constraint("DistanceY", 14, 3, 11, 3, 13.5),
    Sketcher.Constraint("DistanceX", 0, 2, 2, 1, 2.5),
    Sketcher.Constraint("DistanceX", 0, 2, 1, 3, 1.25),
    Sketcher.Constraint("DistanceY", -1, 1, 27, 2, 2.2125),
    Sketcher.Constraint("DistanceX", 3, 2, -1, 1, 3.581091),
    Sketcher.Constraint("DistanceX", 7, 2, 8, 2, 6.860251),
])
pad2 = body.newObject("PartDesign::Pad", "Pad001")
pad2.Profile = sketch2
pad2.Length = 3
pad2.Reversed = True

# Sketch on XZ plane
sketch3 = body.newObject("Sketcher::SketchObject", "Sketch002")
sketch3.AttachmentSupport = (doc.getObject("XZ_Plane"), [""])
sketch3.MapMode = "FlatFace"
sketch3.addGeometry([
    Part.LineSegment(V(1.34, 44.15, 0), V(7.91, 15.61, 0)),  # 0
    Part.ArcOfCircle(Part.Circle(V(0, 0, 0), V(0, 0, 1), 17.5), math.radians(26), math.radians(63)),  # 1
    Part.LineSegment(V(15.74, 7.65, 0), V(6, 50, 0)),  # 2
    Part.ArcOfCircle(Part.Circle(V(0, 50, 0), V(0, 0, 1), 6), math.radians(0), math.radians(180)),  # 3
    Part.LineSegment(V(-6, 50, 0), V(-15.74, 7.65, 0)),  # 4
    Part.ArcOfCircle(Part.Circle(V(0, 0, 0), V(0, 0, 1), 17.5), math.radians(117), math.radians(154)),  # 5
    Part.LineSegment(V(-7.91, 15.61, 0), V(-1.34, 44.15, 0)),  # 6
    Part.ArcOfCircle(Part.Circle(V(0, 50, 0), V(0, 0, 1), 6), math.radians(-102.95), math.radians(-90)),  # 7
    Part.ArcOfCircle(Part.Circle(V(0, 50, 0), V(0, 0, 1), 6), math.radians(-90), math.radians(-77.05)),  # 8
    Part.ArcOfCircle(Part.Circle(V(0, 50, 0), V(0, 0, 1), 1.5), math.radians(0), math.radians(257)),  # 9
    Part.ArcOfCircle(Part.Circle(V(0, 50, 0), V(0, 0, 1), 1.5), math.radians(-77), math.radians(0)),  # 10
    Part.ArcOfCircle(Part.Circle(V(0, 50, 0), V(0, 0, 1), 1.5), math.radians(-90), math.radians(-77.05)),  # 11
    Part.ArcOfCircle(Part.Circle(V(0, 50, 0), V(0, 0, 1), 1.5), math.radians(-102.95), math.radians(-90)),  # 12
], False)
sketch3.addConstraint([
    Sketcher.Constraint("Coincident", 0, 2, 1, 2),
    Sketcher.Constraint("Coincident", 1, 1, 2, 1),
    Sketcher.Constraint("Coincident", 2, 2, 3, 1),
    Sketcher.Constraint("Coincident", 3, 2, 4, 1),
    Sketcher.Constraint("Coincident", 4, 2, 5, 2),
    Sketcher.Constraint("Coincident", 5, 1, 6, 1),
    Sketcher.Constraint("Coincident", 6, 2, 7, 1),
    Sketcher.Constraint("Tangent", 7, 2, 8, 1),
    Sketcher.Constraint("Coincident", 8, 2, 0, 1),
    Sketcher.Constraint("Tangent", 9, 1, 10, 2),
    Sketcher.Constraint("Tangent", 10, 1, 11, 2),
    Sketcher.Constraint("Tangent", 11, 1, 12, 2),
    Sketcher.Constraint("Tangent", 12, 1, 9, 2),
    Sketcher.Constraint("Coincident", 1, 3, -1, 1),
    Sketcher.Constraint("Coincident", 5, 3, -1, 1),
    Sketcher.Constraint("Coincident", 7, 3, 3, 3),
    Sketcher.Constraint("Coincident", 9, 3, 3, 3),
    Sketcher.Constraint("Equal", 1, 5),
    Sketcher.Constraint("Equal", 3, 7),
    Sketcher.Constraint("Equal", 7, 8),
    Sketcher.Constraint("Equal", 9, 10),
    Sketcher.Constraint("Symmetric", 2, 2, 3, 2, -2),
    Sketcher.Constraint("PointOnObject", 7, 2, -2),
    Sketcher.Constraint("PointOnObject", 11, 1, -2),
    Sketcher.Constraint("Parallel", 0, 2),
    Sketcher.Constraint("Parallel", 4, 6),
    Sketcher.Constraint("Horizontal", 12, 3, 2, 2),
    Sketcher.Constraint("Horizontal", 1, 1, 4, 2),
    Sketcher.Constraint("Horizontal", 0, 2, 5, 1),
    Sketcher.Constraint("Horizontal", 3, 2, 9, 1),
    Sketcher.Constraint("Horizontal", 10, 1, 12, 1),
    Sketcher.Constraint("Radius", 3, 6.0),
    Sketcher.Constraint("Radius", 1, 17.5),
    Sketcher.Constraint("Radius", 9, 1.5),
    Sketcher.Constraint("DistanceY", -1, 1, 3, 3, 50.0),
    Sketcher.Constraint("Distance", 2, 43.460289),
    Sketcher.Constraint("DistanceX", -1, 1, 0, 2, 7.909579),
    Sketcher.Constraint("DistanceX", -1, 1, 10, 1, 0.336222),
])
pad3 = body.newObject("PartDesign::Pad", "Pad002")
pad3.Profile = sketch3
pad3.Length = 6
pad3.Reversed = True

doc.recompute()
